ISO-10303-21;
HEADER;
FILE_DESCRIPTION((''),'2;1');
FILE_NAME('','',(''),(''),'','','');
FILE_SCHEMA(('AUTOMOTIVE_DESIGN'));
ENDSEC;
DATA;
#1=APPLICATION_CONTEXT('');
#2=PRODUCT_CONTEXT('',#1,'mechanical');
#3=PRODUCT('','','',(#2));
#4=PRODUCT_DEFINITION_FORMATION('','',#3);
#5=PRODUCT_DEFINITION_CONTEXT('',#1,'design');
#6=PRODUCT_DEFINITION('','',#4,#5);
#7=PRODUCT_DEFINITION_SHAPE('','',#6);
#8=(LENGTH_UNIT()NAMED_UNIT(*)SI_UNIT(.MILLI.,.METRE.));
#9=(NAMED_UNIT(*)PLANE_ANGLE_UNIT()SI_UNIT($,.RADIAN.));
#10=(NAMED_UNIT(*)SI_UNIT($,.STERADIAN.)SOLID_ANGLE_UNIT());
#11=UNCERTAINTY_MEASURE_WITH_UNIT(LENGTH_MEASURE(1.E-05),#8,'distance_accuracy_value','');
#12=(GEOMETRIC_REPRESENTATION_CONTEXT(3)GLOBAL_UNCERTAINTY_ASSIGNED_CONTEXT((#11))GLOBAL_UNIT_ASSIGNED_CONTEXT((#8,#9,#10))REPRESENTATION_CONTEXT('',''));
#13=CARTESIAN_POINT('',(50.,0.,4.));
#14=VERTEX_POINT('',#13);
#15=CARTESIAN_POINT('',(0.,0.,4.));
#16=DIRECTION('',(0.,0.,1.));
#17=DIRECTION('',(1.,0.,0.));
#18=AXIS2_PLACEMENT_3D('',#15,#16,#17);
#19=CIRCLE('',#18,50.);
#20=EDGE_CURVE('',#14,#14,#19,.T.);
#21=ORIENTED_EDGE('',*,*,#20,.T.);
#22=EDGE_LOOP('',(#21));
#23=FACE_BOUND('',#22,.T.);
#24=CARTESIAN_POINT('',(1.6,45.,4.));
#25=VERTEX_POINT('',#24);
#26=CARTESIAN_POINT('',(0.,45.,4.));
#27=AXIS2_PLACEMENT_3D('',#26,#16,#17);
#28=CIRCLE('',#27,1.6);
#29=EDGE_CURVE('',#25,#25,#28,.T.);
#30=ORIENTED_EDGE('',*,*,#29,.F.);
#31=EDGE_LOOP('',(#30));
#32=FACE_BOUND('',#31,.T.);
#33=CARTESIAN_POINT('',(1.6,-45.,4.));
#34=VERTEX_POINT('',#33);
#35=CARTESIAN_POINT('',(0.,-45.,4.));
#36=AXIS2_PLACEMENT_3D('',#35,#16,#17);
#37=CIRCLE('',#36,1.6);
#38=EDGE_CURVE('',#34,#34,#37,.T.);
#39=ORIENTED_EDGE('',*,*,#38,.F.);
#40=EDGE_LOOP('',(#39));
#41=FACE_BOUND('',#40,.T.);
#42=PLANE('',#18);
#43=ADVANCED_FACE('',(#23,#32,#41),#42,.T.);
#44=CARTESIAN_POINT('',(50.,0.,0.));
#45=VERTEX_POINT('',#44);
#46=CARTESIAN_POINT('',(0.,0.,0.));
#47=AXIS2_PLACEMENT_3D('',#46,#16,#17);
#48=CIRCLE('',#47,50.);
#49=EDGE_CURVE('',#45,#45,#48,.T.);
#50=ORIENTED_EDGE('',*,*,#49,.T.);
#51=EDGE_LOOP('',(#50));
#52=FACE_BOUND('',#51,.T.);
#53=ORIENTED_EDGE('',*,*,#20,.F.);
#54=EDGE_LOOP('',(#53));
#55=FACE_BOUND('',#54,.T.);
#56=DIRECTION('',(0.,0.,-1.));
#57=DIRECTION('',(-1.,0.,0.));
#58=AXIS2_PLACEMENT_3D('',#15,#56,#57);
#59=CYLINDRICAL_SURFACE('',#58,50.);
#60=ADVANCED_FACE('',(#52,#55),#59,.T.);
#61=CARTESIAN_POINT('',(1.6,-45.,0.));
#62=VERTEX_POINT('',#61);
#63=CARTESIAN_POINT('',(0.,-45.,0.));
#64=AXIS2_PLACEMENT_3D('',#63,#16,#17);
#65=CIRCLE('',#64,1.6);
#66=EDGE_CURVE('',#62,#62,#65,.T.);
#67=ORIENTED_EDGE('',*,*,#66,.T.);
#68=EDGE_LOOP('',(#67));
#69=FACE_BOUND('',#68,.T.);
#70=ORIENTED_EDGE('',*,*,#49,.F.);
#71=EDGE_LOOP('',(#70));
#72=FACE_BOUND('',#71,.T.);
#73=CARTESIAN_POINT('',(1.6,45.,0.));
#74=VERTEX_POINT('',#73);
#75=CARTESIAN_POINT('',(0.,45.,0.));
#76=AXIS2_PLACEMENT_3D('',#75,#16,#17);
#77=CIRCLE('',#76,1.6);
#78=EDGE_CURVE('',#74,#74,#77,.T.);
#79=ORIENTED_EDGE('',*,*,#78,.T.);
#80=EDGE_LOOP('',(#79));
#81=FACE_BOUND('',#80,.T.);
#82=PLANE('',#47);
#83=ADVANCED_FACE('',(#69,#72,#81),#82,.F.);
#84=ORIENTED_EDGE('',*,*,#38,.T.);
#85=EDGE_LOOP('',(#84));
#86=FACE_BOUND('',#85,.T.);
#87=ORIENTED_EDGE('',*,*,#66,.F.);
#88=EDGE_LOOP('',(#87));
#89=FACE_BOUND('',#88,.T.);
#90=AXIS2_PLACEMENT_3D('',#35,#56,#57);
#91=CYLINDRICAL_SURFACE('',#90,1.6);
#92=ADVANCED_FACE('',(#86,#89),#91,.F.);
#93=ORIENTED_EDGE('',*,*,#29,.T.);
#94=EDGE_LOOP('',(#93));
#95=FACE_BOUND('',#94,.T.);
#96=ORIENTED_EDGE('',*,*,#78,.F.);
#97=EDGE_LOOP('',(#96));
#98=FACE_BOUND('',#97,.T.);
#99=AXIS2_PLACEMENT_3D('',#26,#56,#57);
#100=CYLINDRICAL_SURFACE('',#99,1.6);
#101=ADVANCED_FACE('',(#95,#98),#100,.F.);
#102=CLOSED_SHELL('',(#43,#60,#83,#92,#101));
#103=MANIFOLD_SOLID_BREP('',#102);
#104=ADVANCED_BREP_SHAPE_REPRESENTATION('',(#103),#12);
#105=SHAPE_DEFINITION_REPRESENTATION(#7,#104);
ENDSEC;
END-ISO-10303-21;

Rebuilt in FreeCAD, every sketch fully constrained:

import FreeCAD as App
import Part
import Sketcher

doc = App.newDocument("Part")
body = doc.addObject("PartDesign::Body", "Body")

# Sketch on XY plane
sketch1 = doc.addObject("Sketcher::SketchObject", "Sketch")
body.addObject(sketch1)
sketch1.AttachmentSupport = (doc.XY_Plane, [""])
sketch1.MapMode = "FlatFace"
sketch1.addGeometry([
    Part.Circle(App.Vector(0, 0, 0), App.Vector(0, 0, 1), 50),
    Part.Circle(App.Vector(0, -45, 0), App.Vector(0, 0, 1), 1.6),
    Part.Circle(App.Vector(0, 45, 0), App.Vector(0, 0, 1), 1.6),
], False)
sketch1.addConstraint([
    Sketcher.Constraint("Coincident", 0, 3, -1, 1),
    Sketcher.Constraint("Equal", 1, 2),
    Sketcher.Constraint("Symmetric", 1, 3, 2, 3, -1, 1),
    Sketcher.Constraint("PointOnObject", 1, 3, -2),
    Sketcher.Constraint("Diameter", 0, 100.0),
    Sketcher.Constraint("Diameter", 1, 3.2),
    Sketcher.Constraint("DistanceY", 1, 3, -1, 1, 45.0),
])
pad1 = doc.addObject("PartDesign::Pad", "Pad")
body.addObject(pad1)
pad1.Profile = sketch1
pad1.Length = 4

doc.recompute()
